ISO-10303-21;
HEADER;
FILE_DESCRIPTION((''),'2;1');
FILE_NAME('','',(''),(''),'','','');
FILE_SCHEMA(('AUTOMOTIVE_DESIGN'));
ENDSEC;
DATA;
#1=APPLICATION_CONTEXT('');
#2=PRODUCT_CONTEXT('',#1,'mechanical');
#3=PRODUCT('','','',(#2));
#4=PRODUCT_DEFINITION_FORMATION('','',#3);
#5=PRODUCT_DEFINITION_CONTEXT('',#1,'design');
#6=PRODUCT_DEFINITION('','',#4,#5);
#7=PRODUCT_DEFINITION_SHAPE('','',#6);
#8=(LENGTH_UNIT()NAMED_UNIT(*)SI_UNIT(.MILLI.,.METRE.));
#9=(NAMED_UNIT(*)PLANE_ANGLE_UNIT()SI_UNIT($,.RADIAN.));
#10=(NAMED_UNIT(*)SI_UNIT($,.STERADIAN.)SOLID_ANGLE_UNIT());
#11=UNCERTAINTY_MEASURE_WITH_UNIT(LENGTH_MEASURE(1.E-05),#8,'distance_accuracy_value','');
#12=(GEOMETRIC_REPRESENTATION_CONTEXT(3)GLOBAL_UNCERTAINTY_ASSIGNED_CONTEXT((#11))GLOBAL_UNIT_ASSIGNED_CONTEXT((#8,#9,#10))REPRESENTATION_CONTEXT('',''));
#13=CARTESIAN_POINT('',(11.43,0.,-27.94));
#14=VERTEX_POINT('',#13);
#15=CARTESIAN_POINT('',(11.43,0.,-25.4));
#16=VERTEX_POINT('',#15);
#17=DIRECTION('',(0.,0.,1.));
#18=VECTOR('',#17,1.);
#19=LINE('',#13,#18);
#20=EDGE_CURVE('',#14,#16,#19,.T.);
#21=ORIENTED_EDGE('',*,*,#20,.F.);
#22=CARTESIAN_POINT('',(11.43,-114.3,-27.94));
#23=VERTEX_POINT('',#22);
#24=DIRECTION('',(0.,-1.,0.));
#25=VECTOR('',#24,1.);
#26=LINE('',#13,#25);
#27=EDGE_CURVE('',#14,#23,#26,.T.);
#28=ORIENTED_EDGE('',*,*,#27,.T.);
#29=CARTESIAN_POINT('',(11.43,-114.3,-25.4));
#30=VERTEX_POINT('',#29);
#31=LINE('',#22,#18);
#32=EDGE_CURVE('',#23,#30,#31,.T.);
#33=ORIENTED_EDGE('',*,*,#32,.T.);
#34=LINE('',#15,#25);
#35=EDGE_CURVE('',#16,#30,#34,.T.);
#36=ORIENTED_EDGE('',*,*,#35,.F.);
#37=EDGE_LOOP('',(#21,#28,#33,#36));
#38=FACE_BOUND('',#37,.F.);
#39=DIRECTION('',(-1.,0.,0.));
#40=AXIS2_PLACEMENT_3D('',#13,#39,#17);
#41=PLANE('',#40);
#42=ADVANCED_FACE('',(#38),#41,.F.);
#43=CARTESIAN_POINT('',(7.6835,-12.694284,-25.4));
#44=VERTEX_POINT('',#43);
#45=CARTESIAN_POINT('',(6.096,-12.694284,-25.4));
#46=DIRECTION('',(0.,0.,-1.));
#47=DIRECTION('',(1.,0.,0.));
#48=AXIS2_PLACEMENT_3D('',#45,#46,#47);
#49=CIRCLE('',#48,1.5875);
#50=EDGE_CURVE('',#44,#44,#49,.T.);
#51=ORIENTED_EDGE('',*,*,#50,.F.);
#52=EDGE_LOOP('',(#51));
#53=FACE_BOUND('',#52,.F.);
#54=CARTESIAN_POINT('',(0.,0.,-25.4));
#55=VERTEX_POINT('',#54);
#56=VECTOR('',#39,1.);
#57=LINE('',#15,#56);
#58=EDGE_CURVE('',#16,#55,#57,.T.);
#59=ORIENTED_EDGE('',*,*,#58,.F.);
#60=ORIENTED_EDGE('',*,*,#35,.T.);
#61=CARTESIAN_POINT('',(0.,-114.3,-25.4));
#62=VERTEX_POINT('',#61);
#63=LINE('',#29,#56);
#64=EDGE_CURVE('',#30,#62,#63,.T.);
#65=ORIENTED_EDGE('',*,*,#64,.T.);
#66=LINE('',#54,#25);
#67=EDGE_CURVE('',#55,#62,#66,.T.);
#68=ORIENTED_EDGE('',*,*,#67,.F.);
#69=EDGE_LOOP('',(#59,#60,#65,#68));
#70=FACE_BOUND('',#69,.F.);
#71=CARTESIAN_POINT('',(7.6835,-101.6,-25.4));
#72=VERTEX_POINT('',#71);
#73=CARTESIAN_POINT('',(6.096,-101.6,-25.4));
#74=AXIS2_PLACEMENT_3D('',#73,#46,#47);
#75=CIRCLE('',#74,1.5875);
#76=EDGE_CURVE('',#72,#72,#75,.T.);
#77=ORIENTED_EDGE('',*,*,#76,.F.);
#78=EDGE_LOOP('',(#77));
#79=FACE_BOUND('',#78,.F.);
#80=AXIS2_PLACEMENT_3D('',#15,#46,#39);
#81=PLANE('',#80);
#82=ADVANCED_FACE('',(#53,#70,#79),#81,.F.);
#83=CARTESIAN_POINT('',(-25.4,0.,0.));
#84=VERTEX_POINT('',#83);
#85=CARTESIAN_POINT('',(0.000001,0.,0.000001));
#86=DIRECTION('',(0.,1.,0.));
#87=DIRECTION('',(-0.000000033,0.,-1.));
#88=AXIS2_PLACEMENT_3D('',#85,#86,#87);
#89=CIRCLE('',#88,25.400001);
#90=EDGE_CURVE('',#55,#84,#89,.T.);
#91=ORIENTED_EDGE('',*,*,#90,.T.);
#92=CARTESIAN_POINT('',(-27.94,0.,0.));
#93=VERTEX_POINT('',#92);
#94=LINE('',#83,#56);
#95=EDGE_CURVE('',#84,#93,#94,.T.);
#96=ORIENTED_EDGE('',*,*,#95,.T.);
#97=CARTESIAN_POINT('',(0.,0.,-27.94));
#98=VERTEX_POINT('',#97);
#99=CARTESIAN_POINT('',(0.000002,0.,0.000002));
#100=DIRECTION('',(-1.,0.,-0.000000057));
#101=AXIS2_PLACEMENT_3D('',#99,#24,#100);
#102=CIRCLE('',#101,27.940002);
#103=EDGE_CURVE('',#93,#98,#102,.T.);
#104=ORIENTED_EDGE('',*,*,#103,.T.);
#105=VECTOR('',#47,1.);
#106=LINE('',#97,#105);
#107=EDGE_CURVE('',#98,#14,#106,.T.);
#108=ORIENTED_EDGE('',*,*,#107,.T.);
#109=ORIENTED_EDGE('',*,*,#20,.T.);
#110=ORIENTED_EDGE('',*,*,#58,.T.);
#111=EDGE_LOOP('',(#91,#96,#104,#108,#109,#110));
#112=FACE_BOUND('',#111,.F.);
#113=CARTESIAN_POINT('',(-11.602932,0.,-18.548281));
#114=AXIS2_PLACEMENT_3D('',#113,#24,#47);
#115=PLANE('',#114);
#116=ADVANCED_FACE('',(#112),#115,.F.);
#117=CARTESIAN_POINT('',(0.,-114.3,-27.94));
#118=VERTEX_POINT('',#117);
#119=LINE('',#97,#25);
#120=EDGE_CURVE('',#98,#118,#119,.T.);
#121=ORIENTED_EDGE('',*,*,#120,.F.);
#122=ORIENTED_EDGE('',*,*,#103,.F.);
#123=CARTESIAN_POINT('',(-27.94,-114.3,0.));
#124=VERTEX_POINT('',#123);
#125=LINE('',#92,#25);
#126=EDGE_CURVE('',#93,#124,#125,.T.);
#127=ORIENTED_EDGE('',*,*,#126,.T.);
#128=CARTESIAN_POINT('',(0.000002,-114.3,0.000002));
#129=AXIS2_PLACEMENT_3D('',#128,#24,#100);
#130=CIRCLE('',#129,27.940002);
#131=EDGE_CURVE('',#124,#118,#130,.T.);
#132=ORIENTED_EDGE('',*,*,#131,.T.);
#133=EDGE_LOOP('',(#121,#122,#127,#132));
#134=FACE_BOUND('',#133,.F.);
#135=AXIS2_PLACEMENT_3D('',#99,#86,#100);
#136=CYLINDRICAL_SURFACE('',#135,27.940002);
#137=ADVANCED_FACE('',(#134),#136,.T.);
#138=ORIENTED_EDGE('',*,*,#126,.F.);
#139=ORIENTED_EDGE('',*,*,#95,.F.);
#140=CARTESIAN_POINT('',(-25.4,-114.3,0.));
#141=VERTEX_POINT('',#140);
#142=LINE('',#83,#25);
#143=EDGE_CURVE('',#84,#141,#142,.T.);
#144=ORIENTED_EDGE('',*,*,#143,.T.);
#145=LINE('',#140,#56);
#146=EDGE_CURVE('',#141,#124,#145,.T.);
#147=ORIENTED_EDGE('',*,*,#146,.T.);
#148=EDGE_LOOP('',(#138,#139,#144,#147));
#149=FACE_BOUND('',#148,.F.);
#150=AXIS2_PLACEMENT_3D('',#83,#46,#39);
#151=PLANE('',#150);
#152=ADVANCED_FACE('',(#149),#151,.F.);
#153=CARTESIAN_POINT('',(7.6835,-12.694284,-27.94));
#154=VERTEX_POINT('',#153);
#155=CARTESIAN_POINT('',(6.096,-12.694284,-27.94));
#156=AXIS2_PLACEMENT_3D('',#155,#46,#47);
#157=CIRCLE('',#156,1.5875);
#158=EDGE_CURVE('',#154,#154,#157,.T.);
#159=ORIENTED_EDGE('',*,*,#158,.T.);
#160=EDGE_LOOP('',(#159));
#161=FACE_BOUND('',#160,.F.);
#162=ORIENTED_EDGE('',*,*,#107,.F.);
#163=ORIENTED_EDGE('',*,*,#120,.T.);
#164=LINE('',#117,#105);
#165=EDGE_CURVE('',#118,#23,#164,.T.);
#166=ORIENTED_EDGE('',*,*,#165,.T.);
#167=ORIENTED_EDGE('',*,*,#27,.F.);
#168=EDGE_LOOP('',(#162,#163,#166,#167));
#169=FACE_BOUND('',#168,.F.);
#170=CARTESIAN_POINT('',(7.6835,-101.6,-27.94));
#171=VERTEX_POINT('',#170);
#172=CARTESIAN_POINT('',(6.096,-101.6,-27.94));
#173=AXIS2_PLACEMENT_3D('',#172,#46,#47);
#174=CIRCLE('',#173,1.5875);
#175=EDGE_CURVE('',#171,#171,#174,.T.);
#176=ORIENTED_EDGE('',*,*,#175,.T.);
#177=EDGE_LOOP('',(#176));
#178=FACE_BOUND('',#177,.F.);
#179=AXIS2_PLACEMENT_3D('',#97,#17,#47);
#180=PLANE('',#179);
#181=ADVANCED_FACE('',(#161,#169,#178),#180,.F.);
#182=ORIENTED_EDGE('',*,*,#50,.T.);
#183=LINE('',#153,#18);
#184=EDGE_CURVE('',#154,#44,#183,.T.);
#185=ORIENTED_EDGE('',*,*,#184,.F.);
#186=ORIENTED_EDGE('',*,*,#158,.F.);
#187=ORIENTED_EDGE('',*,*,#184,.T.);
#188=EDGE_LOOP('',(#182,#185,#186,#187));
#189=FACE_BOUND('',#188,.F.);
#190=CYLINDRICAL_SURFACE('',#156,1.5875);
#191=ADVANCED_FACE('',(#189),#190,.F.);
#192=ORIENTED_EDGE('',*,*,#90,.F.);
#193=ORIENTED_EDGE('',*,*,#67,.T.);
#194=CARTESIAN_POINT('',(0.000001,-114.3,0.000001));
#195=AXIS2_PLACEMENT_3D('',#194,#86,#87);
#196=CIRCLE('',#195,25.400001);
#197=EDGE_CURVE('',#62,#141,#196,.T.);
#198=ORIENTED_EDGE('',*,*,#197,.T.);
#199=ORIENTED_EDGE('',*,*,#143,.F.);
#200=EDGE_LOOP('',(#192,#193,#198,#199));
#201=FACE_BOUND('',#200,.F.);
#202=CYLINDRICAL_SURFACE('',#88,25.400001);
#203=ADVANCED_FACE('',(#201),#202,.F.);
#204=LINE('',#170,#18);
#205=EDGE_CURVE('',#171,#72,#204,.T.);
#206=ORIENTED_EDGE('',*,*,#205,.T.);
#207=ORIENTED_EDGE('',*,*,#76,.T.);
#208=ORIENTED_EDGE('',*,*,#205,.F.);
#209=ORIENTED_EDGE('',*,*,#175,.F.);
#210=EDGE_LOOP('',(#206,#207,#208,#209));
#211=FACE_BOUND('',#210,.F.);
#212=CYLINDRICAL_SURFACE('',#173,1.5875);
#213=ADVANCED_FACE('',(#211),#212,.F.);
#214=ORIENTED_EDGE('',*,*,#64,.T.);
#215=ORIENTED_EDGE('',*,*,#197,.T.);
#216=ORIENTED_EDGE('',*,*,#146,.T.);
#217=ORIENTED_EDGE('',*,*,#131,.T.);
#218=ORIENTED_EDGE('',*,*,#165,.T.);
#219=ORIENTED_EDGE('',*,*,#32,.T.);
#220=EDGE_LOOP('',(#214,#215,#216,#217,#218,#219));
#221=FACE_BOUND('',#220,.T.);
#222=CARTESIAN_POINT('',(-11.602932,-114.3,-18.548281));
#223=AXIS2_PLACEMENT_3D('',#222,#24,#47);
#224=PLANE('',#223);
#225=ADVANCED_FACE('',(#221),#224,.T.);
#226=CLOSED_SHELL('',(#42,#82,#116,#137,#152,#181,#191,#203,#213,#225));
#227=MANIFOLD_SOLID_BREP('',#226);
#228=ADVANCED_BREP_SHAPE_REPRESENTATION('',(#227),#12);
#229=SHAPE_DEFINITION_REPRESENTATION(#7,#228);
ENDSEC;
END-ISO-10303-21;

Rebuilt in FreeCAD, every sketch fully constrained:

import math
import FreeCAD as App
import Part
import Sketcher

V = App.Vector
Q = App.Units.Quantity

doc = App.newDocument("Part")
params = doc.addObject("Spreadsheet::Sheet", "Params")
for row, (alias, value) in enumerate([
    ("sketch1_radius", "1 in"),
    ("sketch1_radius2", "1.1000001 in"),
    ("sketch1_width", "0.45 in"),
    ("pad1_length", "4.5 in"),
    ("sketch2_diameter", "0.125 in"),
], start=1):
    params.set(f"A{row}", alias)
    params.set(f"B{row}", "=" + value)
    params.setAlias(f"B{row}", alias)

body = doc.addObject("PartDesign::Body", "Body")

# Sketch on XZ plane
sketch1 = doc.addObject("Sketcher::SketchObject", "Sketch")
body.addObject(sketch1)
sketch1.AttachmentSupport = (doc.XZ_Plane, [""])
sketch1.MapMode = "FlatFace"
sketch1.addGeometry([
    Part.ArcOfCircle(Part.Circle(V(0.000001, 0.000001, 0), V(0, 0, 1), 25.400001), math.radians(-179.999998), math.radians(-90.000002)),  # 0
    Part.LineSegment(V(-25.4, 0, 0), V(-27.94, 0, 0)),  # 1
    Part.ArcOfCircle(Part.Circle(V(0.000002, 0.000002, 0), V(0, 0, 1), 27.940002), math.radians(-179.999997), math.radians(-90.000003)),  # 2
    Part.LineSegment(V(0, -27.94, 0), V(11.43, -27.94, 0)),  # 3
    Part.LineSegment(V(11.43, -27.94, 0), V(11.43, -25.4, 0)),  # 4
    Part.LineSegment(V(11.43, -25.4, 0), V(0, -25.4, 0)),  # 5
], False)
sketch1.addConstraint([
    Sketcher.Constraint("Coincident", 0, 1, 1, 1),
    Sketcher.Constraint("Coincident", 1, 2, 2, 1),
    Sketcher.Constraint("Tangent", 2, 2, 3, 1),
    Sketcher.Constraint("Coincident", 3, 2, 4, 1),
    Sketcher.Constraint("Coincident", 4, 2, 5, 1),
    Sketcher.Constraint("Tangent", 5, 2, 0, 2),
    Sketcher.Constraint("Horizontal", 1),
    Sketcher.Constraint("Horizontal", 3),
    Sketcher.Constraint("Vertical", 4),
    Sketcher.Constraint("Horizontal", 5),
    Sketcher.Constraint("Coincident", 0, 3, -1, 1),
    Sketcher.Constraint("Coincident", 2, 3, -1, 1),
    Sketcher.Constraint("PointOnObject", 0, 1, -1),
    Sketcher.Constraint("Radius", 0, Q("1 in")),
    Sketcher.Constraint("Radius", 2, Q("1.1000001 in")),
    Sketcher.Constraint("DistanceX", 3, 1, 3, 2, Q("0.45 in")),
])
sketch1.setExpression("Constraints[13]", "Params.sketch1_radius")
sketch1.setExpression("Constraints[14]", "Params.sketch1_radius2")
sketch1.setExpression("Constraints[15]", "Params.sketch1_width")
pad1 = doc.addObject("PartDesign::Pad", "Pad")
body.addObject(pad1)
pad1.Profile = sketch1
pad1.setExpression("Length", "Params.pad1_length")

# Sketch on XY plane
sketch2 = doc.addObject("Sketcher::SketchObject", "Sketch001")
body.addObject(sketch2)
sketch2.AttachmentSupport = (doc.XY_Plane, [""])
sketch2.MapMode = "FlatFace"
sketch2.AttachmentOffset = App.Placement(V(0, 0, -1.1 * 25.4), App.Rotation())
sketch2.addGeometry([
    Part.Circle(V(6.096, -12.694284, 0), V(0, 0, 1), 1.5875),
    Part.Circle(V(6.096, -101.6, 0), V(0, 0, 1), 1.5875),
], False)
sketch2.addConstraint([
    Sketcher.Constraint("Equal", 0, 1),
    Sketcher.Constraint("Vertical", 0, 3, 1, 3),
    Sketcher.Constraint("Diameter", 0, Q("0.125 in")),
    Sketcher.Constraint("DistanceY", 1, 3, -1, 1, Q("4 in")),
    Sketcher.Constraint("DistanceX", -1, 1, 0, 3, Q("0.24 in")),
    Sketcher.Constraint("DistanceY", 0, 3, -1, 1, Q("12.694284 mm")),
])
sketch2.setExpression("Constraints[2]", "Params.sketch2_diameter")
pocket1 = doc.addObject("PartDesign::Pocket", "Pocket")
body.addObject(pocket1)
pocket1.Profile = sketch2
pocket1.Type = "ThroughAll"
pocket1.Reversed = True

doc.recompute()
